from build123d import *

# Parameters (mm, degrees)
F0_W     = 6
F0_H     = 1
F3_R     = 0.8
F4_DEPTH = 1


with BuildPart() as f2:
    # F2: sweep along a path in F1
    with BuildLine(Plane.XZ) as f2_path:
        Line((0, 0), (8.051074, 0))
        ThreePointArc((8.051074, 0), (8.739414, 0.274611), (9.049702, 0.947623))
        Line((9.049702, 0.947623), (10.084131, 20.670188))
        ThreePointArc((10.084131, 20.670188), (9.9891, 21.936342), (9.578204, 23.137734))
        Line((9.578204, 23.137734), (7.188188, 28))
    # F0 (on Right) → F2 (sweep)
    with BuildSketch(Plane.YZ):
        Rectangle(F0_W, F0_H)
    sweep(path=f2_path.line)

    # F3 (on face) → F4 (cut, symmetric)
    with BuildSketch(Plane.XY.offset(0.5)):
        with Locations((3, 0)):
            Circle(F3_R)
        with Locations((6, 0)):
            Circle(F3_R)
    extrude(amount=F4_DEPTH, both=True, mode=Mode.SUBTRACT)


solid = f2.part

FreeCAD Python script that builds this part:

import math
import FreeCAD as App
import Part
import Sketcher
from FreeCAD import Vector

doc = App.newDocument("Part")
body = doc.addObject("PartDesign::Body", "Body")

sketch1 = body.newObject("Sketcher::SketchObject", "Sketch")
sketch1.AttachmentSupport = (doc.getObject("YZ_Plane"), [""])
sketch1.MapMode = "FlatFace"
sketch1.addGeometry([
    Part.LineSegment(Vector(-3, 0.5, 0), Vector(-3, -0.5, 0)),
    Part.LineSegment(Vector(-3, -0.5, 0), Vector(3, -0.5, 0)),
    Part.LineSegment(Vector(3, -0.5, 0), Vector(3, 0.5, 0)),
    Part.LineSegment(Vector(3, 0.5, 0), Vector(-3, 0.5, 0)),
], False)
sketch1.addConstraint([
    Sketcher.Constraint("Coincident", 0, 2, 1, 1),
    Sketcher.Constraint("Coincident", 1, 2, 2, 1),
    Sketcher.Constraint("Coincident", 2, 2, 3, 1),
    Sketcher.Constraint("Coincident", 3, 2, 0, 1),
    Sketcher.Constraint("Vertical", 0),
    Sketcher.Constraint("Horizontal", 1),
    Sketcher.Constraint("Vertical", 2),
    Sketcher.Constraint("Horizontal", 3),
    Sketcher.Constraint("Symmetric", 0, 2, 2, 2, -1, 1),
    Sketcher.Constraint("DistanceX", 1, 1, 1, 2, 6.0),
    Sketcher.Constraint("DistanceY", 0, 2, 0, 1, 1.0),
])

sketch2 = body.newObject("Sketcher::SketchObject", "Sketch001")
sketch2.AttachmentSupport = (doc.getObject("XZ_Plane"), [""])
sketch2.MapMode = "FlatFace"
sketch2.addGeometry([
    Part.LineSegment(Vector(0, 0, 0), Vector(8.1, 0, 0)),
    Part.ArcOfCircle(Part.Circle(Vector(8.1, 1, 0), Vector(0, 0, 1), 1), math.radians(-90), math.radians(-3)),
    Part.LineSegment(Vector(9, 0.9, 0), Vector(10.1, 20.7, 0)),
    Part.ArcOfCircle(Part.Circle(Vector(5.1, 20.9, 0), Vector(0, 0, 1), 5), math.radians(-3), math.radians(26)),
    Part.LineSegment(Vector(9.6, 23.1, 0), Vector(7.2, 28, 0)),
], False)
sketch2.addConstraint([
    Sketcher.Constraint("Tangent", 0, 2, 1, 1),
    Sketcher.Constraint("Tangent", 1, 2, 2, 1),
    Sketcher.Constraint("Tangent", 2, 2, 3, 1),
    Sketcher.Constraint("Tangent", 3, 2, 4, 1),
    Sketcher.Constraint("Horizontal", 0),
    Sketcher.Constraint("Coincident", 0, 1, -1, 1),
    Sketcher.Constraint("Radius", 1, 1.0),
    Sketcher.Constraint("DistanceY", -1, 1, 4, 2, 28.0),
    Sketcher.Constraint("Radius", 3, 4.999996),
    Sketcher.Constraint("DistanceX", -1, 1, 1, 2, 9.049702),
    Sketcher.Constraint("DistanceX", 1, 2, 3, 2, 0.528502),
    Sketcher.Constraint("DistanceX", -1, 1, 2, 2, 10.084131),
    Sketcher.Constraint("DistanceX", -1, 1, 4, 2, 7.188188),
])
doc.recompute()

additivepipe = body.newObject("PartDesign::AdditivePipe", "AdditivePipe")
additivepipe.Profile = sketch1
additivepipe.Spine = (sketch2, ["Edge1", "Edge2", "Edge3", "Edge4", "Edge5"])

sketch3 = body.newObject("Sketcher::SketchObject", "Sketch002")
sketch3.AttachmentSupport = (doc.getObject("XY_Plane"), [""])
sketch3.MapMode = "FlatFace"
sketch3.AttachmentOffset = App.Placement(Vector(0, 0, 0.5), App.Rotation())
sketch3.addGeometry([
    Part.Circle(Vector(3, 0, 0), Vector(0, 0, 1), 0.8),
    Part.Circle(Vector(6, 0, 0), Vector(0, 0, 1), 0.8),
], False)
sketch3.addConstraint([
    Sketcher.Constraint("Equal", 0, 1),
    Sketcher.Constraint("PointOnObject", 0, 3, -1),
    Sketcher.Constraint("PointOnObject", 1, 3, -1),
    Sketcher.Constraint("Diameter", 0, 1.6),
    Sketcher.Constraint("DistanceX", -1, 1, 0, 3, 3.0),
    Sketcher.Constraint("DistanceX", -1, 1, 1, 3, 6.0),
])
pocket1 = body.newObject("PartDesign::Pocket", "Pocket")
pocket1.Profile = sketch3
pocket1.Length = 2
pocket1.Midplane = True

doc.recompute()
